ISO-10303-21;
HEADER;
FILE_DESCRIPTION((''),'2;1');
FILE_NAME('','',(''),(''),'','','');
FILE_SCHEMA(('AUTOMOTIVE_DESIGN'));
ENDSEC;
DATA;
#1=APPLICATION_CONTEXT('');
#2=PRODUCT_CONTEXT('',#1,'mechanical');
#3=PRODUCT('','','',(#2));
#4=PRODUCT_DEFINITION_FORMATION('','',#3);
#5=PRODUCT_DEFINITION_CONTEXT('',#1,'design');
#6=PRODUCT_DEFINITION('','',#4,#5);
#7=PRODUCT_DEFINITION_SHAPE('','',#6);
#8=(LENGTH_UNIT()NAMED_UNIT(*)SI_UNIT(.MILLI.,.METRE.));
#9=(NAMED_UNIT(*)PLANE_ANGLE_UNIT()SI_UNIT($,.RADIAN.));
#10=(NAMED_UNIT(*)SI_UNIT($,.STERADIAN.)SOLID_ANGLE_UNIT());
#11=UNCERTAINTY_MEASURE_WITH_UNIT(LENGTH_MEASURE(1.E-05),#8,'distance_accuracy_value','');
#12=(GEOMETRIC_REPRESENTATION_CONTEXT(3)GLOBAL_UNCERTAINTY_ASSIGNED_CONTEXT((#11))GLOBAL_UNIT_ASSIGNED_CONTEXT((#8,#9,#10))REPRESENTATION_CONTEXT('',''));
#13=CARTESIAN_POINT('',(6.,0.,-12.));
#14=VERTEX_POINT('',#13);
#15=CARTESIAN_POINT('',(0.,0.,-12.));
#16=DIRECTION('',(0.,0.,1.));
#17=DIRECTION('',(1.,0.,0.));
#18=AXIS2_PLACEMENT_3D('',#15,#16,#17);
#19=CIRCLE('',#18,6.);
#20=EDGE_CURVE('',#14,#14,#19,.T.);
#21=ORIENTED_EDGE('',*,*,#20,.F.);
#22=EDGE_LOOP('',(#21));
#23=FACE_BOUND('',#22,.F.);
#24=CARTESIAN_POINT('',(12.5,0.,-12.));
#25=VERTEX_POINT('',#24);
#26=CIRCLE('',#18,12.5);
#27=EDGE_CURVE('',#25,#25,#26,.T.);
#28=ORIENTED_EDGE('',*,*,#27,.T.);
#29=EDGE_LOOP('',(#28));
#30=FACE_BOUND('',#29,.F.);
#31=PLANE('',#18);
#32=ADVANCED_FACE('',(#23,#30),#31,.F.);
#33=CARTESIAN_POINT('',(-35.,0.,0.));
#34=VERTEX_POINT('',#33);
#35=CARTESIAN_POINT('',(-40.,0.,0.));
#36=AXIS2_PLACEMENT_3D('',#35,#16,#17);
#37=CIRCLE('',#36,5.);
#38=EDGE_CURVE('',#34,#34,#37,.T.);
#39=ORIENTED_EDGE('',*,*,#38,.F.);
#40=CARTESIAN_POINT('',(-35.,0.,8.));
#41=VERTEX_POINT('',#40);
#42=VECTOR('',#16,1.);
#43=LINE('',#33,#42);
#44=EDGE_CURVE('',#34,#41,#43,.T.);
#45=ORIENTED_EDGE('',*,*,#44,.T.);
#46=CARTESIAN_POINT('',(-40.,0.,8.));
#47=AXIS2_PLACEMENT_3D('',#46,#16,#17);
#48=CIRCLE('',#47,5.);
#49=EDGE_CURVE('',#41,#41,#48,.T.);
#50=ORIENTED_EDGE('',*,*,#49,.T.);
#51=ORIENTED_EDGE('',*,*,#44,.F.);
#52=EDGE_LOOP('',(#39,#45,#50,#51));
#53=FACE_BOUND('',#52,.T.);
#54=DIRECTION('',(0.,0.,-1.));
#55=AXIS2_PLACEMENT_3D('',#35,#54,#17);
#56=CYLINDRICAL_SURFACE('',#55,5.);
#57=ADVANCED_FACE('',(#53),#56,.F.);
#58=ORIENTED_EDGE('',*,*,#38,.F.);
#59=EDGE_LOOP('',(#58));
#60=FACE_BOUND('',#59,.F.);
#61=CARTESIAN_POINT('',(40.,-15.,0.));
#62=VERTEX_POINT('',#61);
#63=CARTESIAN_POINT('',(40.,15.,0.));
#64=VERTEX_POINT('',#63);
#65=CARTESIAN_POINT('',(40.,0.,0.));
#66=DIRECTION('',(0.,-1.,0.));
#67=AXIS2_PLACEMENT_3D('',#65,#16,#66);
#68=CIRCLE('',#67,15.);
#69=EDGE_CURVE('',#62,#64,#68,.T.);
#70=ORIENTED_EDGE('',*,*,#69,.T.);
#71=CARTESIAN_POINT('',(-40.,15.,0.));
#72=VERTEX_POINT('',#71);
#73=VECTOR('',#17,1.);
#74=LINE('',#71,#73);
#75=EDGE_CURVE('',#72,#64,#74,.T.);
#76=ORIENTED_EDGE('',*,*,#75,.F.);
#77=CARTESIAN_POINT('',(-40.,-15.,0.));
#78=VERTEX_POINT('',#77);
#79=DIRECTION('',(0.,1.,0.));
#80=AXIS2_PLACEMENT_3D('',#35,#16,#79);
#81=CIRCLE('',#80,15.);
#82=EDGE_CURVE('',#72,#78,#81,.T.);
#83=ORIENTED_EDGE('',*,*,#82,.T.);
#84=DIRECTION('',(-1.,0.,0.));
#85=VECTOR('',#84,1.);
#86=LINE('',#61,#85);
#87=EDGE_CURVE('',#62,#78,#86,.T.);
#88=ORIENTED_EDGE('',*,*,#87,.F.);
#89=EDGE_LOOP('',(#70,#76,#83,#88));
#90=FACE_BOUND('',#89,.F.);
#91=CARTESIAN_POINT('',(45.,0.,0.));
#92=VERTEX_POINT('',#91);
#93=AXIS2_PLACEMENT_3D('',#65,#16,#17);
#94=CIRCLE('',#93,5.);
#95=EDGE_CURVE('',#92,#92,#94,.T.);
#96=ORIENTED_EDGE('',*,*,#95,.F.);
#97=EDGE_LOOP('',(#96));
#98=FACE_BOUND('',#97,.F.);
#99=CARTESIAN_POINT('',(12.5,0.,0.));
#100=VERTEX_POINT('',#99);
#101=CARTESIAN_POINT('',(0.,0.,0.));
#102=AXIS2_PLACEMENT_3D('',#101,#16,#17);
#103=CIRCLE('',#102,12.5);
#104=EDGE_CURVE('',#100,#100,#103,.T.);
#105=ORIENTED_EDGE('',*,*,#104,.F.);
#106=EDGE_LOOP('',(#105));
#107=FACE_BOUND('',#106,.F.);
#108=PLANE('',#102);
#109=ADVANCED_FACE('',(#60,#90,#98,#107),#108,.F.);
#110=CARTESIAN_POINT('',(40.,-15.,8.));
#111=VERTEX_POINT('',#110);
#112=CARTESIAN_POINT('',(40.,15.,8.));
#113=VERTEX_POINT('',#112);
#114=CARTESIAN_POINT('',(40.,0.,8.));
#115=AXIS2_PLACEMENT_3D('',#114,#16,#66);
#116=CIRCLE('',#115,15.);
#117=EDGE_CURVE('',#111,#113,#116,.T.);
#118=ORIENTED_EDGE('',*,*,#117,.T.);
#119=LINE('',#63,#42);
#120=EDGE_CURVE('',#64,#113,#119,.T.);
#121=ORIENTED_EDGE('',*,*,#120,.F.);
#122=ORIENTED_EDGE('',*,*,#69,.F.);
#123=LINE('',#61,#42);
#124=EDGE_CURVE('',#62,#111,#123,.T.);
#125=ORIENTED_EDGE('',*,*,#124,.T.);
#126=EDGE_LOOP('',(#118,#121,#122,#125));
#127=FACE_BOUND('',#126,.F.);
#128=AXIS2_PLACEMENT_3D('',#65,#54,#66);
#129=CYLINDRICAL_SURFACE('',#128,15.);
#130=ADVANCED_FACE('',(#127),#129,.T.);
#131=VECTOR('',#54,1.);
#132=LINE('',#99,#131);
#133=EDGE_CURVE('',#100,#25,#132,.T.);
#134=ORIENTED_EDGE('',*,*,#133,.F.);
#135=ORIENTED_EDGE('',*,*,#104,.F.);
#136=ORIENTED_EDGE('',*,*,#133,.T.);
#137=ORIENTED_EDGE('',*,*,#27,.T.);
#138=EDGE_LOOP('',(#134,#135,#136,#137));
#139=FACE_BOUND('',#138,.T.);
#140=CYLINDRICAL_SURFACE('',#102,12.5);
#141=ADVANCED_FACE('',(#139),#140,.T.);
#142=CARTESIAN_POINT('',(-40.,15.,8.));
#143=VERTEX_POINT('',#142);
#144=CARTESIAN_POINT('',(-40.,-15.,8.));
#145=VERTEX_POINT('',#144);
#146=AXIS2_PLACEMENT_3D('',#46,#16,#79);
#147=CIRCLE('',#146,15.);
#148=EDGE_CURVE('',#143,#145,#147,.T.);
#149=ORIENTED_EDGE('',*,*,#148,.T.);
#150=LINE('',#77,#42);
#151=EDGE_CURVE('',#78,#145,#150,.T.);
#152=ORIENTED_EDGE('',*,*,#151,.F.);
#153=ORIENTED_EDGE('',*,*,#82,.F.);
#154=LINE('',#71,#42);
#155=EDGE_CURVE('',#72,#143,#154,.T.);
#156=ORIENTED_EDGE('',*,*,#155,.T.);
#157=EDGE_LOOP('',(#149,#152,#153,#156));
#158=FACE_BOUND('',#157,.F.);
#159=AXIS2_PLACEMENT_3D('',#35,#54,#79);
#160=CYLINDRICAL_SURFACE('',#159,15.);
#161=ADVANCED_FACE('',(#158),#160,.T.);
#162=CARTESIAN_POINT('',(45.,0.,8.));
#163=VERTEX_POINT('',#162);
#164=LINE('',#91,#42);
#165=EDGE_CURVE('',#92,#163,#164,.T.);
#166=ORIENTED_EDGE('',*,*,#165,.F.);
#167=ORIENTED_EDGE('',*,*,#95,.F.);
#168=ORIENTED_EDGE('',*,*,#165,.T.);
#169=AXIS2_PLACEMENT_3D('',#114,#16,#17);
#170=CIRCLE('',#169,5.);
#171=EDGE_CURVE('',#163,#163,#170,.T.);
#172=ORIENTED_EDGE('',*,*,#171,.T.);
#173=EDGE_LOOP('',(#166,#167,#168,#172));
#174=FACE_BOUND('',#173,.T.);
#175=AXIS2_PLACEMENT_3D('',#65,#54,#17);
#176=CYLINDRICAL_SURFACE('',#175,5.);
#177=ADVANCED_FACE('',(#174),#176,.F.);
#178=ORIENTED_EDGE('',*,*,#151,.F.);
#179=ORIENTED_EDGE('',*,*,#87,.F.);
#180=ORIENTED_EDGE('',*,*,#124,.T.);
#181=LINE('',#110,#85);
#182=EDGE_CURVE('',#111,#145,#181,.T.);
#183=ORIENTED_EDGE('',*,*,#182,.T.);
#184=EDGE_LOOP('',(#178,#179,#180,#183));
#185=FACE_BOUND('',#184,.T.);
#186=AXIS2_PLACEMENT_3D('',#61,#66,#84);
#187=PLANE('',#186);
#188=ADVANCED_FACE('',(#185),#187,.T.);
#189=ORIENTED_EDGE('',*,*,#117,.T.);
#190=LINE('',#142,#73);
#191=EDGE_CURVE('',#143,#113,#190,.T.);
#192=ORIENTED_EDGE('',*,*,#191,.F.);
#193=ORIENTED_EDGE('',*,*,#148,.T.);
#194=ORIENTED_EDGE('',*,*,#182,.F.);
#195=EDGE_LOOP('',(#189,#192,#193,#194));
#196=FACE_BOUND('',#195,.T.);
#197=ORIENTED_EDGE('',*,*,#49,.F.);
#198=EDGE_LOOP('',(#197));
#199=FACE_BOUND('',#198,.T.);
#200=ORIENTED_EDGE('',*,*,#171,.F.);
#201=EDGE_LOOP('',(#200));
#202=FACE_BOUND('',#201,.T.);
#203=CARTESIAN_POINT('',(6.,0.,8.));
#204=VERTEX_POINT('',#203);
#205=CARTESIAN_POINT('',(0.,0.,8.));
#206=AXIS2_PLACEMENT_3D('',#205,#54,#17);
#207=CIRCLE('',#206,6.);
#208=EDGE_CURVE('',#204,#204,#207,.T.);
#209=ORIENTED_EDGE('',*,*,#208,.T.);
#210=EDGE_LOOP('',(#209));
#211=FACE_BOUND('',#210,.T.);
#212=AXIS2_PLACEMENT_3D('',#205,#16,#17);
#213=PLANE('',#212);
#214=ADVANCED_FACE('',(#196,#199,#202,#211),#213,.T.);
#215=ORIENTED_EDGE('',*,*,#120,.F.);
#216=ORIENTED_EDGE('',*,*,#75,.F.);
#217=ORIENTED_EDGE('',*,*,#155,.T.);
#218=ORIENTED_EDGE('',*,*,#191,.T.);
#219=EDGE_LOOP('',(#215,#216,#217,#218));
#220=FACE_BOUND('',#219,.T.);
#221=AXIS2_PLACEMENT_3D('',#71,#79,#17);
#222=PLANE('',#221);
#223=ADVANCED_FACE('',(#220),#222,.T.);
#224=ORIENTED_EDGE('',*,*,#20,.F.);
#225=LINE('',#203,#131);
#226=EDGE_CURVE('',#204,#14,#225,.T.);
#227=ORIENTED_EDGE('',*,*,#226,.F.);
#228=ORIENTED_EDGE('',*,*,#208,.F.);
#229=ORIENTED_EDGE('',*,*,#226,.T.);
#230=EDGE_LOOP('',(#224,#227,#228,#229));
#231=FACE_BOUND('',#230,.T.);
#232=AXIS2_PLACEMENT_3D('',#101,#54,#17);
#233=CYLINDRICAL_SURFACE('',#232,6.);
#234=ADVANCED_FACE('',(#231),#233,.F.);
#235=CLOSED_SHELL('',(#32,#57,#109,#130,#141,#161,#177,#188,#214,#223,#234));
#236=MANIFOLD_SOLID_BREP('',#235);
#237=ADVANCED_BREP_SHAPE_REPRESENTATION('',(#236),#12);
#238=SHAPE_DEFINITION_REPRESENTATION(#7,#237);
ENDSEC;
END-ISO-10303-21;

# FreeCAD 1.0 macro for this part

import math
import FreeCAD as App
import Part
import Sketcher

V = App.Vector
Q = App.Units.Quantity

doc = App.newDocument("Part")
body = doc.addObject("PartDesign::Body", "Body")

# Sketch on XY plane
sketch1 = body.newObject("Sketcher::SketchObject", "Sketch")
sketch1.AttachmentSupport = (doc.getObject("XY_Plane"), [""])
sketch1.MapMode = "FlatFace"
sketch1.addGeometry(Part.LineSegment(V(-40, -15, 0), V(40, -15, 0)), False)
sketch1.addGeometry(Part.ArcOfCircle(Part.Circle(V(40, 0, 0), V(0, 0, 1), 15), math.radians(-90), math.radians(90)), False)
sketch1.addGeometry(Part.LineSegment(V(40, 15, 0), V(-40, 15, 0)), False)
sketch1.addGeometry(Part.ArcOfCircle(Part.Circle(V(-40, 0, 0), V(0, 0, 1), 15), math.radians(90), math.radians(270)), False)
sketch1.addConstraint(Sketcher.Constraint("Tangent", 0, 2, 1, 1))
sketch1.addConstraint(Sketcher.Constraint("Tangent", 1, 2, 2, 1))
sketch1.addConstraint(Sketcher.Constraint("Tangent", 2, 2, 3, 1))
sketch1.addConstraint(Sketcher.Constraint("Tangent", 3, 2, 0, 1))
sketch1.addConstraint(Sketcher.Constraint("Horizontal", 0))
sketch1.addConstraint(Sketcher.Constraint("Horizontal", 2))
sketch1.addConstraint(Sketcher.Constraint("Symmetric", 1, 3, 3, 3, -1, 1))
sketch1.addConstraint(Sketcher.Constraint("DistanceX", 0, 1, 0, 2, Q("80 mm")))
sketch1.addConstraint(Sketcher.Constraint("Radius", 1, Q("15 mm")))
pad1 = body.newObject("PartDesign::Pad", "Pad")
pad1.Profile = sketch1
pad1.Length = 8

# Sketch on XY plane
sketch2 = body.newObject("Sketcher::SketchObject", "Sketch001")
sketch2.AttachmentSupport = (doc.getObject("XY_Plane"), [""])
sketch2.MapMode = "FlatFace"
sketch2.addGeometry(Part.Circle(V(-40, 0, 0), V(0, 0, 1), 5), False)
sketch2.addConstraint(Sketcher.Constraint("PointOnObject", 0, 3, -1))
sketch2.addConstraint(Sketcher.Constraint("Diameter", 0, Q("10 mm")))
sketch2.addConstraint(Sketcher.Constraint("DistanceX", 0, 3, -1, 1, Q("40 mm")))
pocket1 = body.newObject("PartDesign::Pocket", "Pocket")
pocket1.Profile = sketch2
pocket1.Length = 8
pocket1.Reversed = True

# Sketch on XY plane
sketch3 = body.newObject("Sketcher::SketchObject", "Sketch002")
sketch3.AttachmentSupport = (doc.getObject("XY_Plane"), [""])
sketch3.MapMode = "FlatFace"
sketch3.addGeometry(Part.Circle(V(40, 0, 0), V(0, 0, 1), 5), False)
sketch3.addConstraint(Sketcher.Constraint("PointOnObject", 0, 3, -1))
sketch3.addConstraint(Sketcher.Constraint("Diameter", 0, Q("10 mm")))
sketch3.addConstraint(Sketcher.Constraint("DistanceX", -1, 1, 0, 3, Q("40 mm")))
pocket2 = body.newObject("PartDesign::Pocket", "Pocket001")
pocket2.Profile = sketch3
pocket2.Length = 8
pocket2.Reversed = True

# Sketch on XY plane
sketch4 = body.newObject("Sketcher::SketchObject", "Sketch003")
sketch4.AttachmentSupport = (doc.getObject("XY_Plane"), [""])
sketch4.MapMode = "FlatFace"
sketch4.addGeometry(Part.Circle(V(0, 0, 0), V(0, 0, 1), 12), False)
sketch4.addGeometry(Part.Circle(V(0, 0, 0), V(0, 0, 1), 6), False)
sketch4.addConstraint(Sketcher.Constraint("Coincident", 0, 3, -1, 1))
sketch4.addConstraint(Sketcher.Constraint("Coincident", 1, 3, -1, 1))
sketch4.addConstraint(Sketcher.Constraint("Diameter", 0, Q("25 mm")))
sketch4.addConstraint(Sketcher.Constraint("Diameter", 1, Q("12 mm")))
pad2 = body.newObject("PartDesign::Pad", "Pad001")
pad2.Profile = sketch4
pad2.Length = 12
pad2.Reversed = True

# Sketch on XY plane
sketch5 = body.newObject("Sketcher::SketchObject", "Sketch004")
sketch5.AttachmentSupport = (doc.getObject("XY_Plane"), [""])
sketch5.MapMode = "FlatFace"
sketch5.addGeometry(Part.Circle(V(0, 0, 0), V(0, 0, 1), 6), False)
sketch5.addConstraint(Sketcher.Constraint("Coincident", 0, 3, -1, 1))
sketch5.addConstraint(Sketcher.Constraint("Diameter", 0, Q("12 mm")))
pocket3 = body.newObject("PartDesign::Pocket", "Pocket002")
pocket3.Profile = sketch5
pocket3.Length = 12
pocket3.Reversed = True

doc.recompute()
